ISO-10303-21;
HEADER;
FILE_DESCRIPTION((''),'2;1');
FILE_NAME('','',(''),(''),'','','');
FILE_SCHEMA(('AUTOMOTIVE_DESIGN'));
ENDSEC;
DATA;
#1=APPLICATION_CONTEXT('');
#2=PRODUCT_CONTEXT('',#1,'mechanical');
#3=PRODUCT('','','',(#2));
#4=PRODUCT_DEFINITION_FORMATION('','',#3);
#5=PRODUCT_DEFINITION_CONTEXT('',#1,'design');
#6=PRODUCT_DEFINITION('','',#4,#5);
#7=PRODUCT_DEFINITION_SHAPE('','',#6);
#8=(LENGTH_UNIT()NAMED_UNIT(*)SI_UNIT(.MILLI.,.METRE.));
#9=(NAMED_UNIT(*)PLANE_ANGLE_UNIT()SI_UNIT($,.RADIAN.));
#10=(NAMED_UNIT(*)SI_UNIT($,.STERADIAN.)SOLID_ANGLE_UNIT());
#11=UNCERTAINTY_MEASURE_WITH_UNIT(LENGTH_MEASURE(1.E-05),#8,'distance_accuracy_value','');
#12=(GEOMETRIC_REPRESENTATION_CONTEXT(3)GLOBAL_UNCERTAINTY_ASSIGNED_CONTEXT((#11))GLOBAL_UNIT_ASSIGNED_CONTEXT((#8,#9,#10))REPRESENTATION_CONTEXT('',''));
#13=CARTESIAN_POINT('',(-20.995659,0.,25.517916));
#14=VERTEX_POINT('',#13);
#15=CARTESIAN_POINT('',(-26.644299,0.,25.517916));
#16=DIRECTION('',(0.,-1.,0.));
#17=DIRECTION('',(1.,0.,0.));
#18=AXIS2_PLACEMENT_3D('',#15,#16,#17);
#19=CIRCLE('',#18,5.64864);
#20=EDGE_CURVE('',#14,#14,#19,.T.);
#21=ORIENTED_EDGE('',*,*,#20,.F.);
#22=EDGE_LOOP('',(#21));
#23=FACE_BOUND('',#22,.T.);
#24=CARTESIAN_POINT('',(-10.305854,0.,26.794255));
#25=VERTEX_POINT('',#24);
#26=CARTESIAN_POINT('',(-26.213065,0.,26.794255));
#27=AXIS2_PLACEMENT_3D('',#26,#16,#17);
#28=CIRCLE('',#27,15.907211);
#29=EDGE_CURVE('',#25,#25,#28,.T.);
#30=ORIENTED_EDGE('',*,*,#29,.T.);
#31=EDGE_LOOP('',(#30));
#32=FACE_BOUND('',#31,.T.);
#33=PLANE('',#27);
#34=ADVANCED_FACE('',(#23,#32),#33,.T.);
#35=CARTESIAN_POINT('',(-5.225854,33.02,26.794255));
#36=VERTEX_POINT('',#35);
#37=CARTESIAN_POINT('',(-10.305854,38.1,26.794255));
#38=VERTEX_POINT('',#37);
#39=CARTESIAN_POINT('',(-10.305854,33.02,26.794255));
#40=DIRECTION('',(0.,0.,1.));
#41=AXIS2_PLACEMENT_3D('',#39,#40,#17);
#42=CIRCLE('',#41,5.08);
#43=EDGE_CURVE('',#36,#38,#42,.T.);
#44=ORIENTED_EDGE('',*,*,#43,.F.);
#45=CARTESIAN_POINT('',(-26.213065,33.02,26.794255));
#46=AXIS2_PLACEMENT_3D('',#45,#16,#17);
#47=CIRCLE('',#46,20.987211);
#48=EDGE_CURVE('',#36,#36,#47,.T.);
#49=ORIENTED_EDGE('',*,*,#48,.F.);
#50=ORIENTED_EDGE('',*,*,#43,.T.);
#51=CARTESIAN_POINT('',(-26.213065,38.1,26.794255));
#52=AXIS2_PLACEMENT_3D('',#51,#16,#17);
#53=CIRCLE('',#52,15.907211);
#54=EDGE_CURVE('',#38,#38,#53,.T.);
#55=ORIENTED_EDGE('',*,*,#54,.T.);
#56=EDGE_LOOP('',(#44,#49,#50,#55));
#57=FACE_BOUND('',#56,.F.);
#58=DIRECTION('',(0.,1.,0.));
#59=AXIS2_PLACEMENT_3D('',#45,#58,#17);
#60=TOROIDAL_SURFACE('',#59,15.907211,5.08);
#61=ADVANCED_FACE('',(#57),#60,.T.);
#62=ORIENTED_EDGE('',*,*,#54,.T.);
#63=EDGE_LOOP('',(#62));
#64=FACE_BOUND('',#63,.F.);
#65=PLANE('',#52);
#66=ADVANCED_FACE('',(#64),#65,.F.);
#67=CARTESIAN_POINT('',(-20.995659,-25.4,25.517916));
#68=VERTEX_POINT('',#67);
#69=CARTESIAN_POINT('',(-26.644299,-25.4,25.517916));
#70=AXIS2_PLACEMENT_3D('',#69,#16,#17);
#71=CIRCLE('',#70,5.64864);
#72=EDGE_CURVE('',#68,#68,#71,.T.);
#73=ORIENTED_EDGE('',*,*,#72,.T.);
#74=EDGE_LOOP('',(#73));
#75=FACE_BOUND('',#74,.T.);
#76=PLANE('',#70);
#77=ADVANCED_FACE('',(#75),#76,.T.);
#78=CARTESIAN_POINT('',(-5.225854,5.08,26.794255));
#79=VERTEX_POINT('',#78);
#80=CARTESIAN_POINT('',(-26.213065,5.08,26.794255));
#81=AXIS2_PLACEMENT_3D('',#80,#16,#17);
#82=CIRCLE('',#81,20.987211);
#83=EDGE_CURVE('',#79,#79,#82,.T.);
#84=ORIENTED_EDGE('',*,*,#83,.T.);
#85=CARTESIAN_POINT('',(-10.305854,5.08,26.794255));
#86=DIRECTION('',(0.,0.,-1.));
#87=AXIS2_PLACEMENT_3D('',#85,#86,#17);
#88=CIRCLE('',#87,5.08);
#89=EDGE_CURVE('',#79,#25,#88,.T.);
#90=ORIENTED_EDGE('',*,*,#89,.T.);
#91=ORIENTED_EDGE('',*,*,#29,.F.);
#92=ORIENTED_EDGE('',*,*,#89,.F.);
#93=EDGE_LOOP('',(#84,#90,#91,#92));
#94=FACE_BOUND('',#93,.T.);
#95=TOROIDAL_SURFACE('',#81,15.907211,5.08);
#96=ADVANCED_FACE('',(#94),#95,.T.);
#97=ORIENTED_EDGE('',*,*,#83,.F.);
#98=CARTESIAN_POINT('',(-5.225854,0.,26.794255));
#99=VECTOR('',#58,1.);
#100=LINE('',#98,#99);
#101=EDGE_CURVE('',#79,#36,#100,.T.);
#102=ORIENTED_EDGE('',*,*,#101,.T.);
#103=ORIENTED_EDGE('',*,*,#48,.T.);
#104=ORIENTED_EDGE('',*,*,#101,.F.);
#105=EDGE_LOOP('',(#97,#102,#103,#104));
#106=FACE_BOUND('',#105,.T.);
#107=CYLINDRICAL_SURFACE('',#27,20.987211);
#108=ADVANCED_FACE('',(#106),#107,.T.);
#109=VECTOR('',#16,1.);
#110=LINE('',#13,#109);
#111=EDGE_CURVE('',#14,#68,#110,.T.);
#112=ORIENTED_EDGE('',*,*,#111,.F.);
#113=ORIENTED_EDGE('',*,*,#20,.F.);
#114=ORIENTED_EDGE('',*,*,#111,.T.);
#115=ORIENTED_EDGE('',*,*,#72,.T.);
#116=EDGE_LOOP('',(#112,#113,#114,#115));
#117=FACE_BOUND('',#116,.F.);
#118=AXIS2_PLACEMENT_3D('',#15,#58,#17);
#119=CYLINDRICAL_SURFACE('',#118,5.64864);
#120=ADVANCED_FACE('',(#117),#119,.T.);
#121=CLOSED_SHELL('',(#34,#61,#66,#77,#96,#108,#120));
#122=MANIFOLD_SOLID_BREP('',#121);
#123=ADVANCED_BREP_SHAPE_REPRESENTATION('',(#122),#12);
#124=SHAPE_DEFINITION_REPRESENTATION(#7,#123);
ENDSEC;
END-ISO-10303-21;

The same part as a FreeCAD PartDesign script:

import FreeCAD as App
import Part
import Sketcher

V = App.Vector
Q = App.Units.Quantity

doc = App.newDocument("Part")
body = doc.addObject("PartDesign::Body", "Body")

# Sketch on XZ plane
sketch1 = body.newObject("Sketcher::SketchObject", "Sketch")
sketch1.AttachmentSupport = (doc.getObject("XZ_Plane"), [""])
sketch1.MapMode = "FlatFace"
sketch1.addGeometry(Part.Circle(V(-26, 27, 0), V(0, 0, 1), 21), False)
sketch1.addConstraint([
    Sketcher.Constraint("Diameter", 0, Q("41.974422 mm")),
    Sketcher.Constraint("DistanceX", 0, 3, -1, 1, Q("26.213065 mm")),
    Sketcher.Constraint("DistanceY", -1, 1, 0, 3, Q("26.794255 mm")),
])
pad1 = body.newObject("PartDesign::Pad", "Pad")
pad1.Profile = sketch1
pad1.Length = Q("1.5 in")
pad1.Reversed = True
doc.recompute()

fillet = body.newObject("PartDesign::Fillet", "Fillet")
fillet.Base = (pad1, ["Edge1"])
fillet.UseAllEdges = True
fillet.Radius = Q("0.2 in")

# Sketch on XZ plane
sketch2 = body.newObject("Sketcher::SketchObject", "Sketch001")
sketch2.AttachmentSupport = (doc.getObject("XZ_Plane"), [""])
sketch2.MapMode = "FlatFace"
sketch2.addGeometry(Part.Circle(V(-27, 26, 0), V(0, 0, 1), 6), False)
sketch2.addConstraint([
    Sketcher.Constraint("Diameter", 0, Q("11.29728 mm")),
    Sketcher.Constraint("DistanceX", 0, 3, -1, 1, Q("26.644299 mm")),
    Sketcher.Constraint("DistanceY", -1, 1, 0, 3, Q("25.517916 mm")),
])
pad2 = body.newObject("PartDesign::Pad", "Pad001")
pad2.Profile = sketch2
pad2.Length = Q("1 in")

doc.recompute()
